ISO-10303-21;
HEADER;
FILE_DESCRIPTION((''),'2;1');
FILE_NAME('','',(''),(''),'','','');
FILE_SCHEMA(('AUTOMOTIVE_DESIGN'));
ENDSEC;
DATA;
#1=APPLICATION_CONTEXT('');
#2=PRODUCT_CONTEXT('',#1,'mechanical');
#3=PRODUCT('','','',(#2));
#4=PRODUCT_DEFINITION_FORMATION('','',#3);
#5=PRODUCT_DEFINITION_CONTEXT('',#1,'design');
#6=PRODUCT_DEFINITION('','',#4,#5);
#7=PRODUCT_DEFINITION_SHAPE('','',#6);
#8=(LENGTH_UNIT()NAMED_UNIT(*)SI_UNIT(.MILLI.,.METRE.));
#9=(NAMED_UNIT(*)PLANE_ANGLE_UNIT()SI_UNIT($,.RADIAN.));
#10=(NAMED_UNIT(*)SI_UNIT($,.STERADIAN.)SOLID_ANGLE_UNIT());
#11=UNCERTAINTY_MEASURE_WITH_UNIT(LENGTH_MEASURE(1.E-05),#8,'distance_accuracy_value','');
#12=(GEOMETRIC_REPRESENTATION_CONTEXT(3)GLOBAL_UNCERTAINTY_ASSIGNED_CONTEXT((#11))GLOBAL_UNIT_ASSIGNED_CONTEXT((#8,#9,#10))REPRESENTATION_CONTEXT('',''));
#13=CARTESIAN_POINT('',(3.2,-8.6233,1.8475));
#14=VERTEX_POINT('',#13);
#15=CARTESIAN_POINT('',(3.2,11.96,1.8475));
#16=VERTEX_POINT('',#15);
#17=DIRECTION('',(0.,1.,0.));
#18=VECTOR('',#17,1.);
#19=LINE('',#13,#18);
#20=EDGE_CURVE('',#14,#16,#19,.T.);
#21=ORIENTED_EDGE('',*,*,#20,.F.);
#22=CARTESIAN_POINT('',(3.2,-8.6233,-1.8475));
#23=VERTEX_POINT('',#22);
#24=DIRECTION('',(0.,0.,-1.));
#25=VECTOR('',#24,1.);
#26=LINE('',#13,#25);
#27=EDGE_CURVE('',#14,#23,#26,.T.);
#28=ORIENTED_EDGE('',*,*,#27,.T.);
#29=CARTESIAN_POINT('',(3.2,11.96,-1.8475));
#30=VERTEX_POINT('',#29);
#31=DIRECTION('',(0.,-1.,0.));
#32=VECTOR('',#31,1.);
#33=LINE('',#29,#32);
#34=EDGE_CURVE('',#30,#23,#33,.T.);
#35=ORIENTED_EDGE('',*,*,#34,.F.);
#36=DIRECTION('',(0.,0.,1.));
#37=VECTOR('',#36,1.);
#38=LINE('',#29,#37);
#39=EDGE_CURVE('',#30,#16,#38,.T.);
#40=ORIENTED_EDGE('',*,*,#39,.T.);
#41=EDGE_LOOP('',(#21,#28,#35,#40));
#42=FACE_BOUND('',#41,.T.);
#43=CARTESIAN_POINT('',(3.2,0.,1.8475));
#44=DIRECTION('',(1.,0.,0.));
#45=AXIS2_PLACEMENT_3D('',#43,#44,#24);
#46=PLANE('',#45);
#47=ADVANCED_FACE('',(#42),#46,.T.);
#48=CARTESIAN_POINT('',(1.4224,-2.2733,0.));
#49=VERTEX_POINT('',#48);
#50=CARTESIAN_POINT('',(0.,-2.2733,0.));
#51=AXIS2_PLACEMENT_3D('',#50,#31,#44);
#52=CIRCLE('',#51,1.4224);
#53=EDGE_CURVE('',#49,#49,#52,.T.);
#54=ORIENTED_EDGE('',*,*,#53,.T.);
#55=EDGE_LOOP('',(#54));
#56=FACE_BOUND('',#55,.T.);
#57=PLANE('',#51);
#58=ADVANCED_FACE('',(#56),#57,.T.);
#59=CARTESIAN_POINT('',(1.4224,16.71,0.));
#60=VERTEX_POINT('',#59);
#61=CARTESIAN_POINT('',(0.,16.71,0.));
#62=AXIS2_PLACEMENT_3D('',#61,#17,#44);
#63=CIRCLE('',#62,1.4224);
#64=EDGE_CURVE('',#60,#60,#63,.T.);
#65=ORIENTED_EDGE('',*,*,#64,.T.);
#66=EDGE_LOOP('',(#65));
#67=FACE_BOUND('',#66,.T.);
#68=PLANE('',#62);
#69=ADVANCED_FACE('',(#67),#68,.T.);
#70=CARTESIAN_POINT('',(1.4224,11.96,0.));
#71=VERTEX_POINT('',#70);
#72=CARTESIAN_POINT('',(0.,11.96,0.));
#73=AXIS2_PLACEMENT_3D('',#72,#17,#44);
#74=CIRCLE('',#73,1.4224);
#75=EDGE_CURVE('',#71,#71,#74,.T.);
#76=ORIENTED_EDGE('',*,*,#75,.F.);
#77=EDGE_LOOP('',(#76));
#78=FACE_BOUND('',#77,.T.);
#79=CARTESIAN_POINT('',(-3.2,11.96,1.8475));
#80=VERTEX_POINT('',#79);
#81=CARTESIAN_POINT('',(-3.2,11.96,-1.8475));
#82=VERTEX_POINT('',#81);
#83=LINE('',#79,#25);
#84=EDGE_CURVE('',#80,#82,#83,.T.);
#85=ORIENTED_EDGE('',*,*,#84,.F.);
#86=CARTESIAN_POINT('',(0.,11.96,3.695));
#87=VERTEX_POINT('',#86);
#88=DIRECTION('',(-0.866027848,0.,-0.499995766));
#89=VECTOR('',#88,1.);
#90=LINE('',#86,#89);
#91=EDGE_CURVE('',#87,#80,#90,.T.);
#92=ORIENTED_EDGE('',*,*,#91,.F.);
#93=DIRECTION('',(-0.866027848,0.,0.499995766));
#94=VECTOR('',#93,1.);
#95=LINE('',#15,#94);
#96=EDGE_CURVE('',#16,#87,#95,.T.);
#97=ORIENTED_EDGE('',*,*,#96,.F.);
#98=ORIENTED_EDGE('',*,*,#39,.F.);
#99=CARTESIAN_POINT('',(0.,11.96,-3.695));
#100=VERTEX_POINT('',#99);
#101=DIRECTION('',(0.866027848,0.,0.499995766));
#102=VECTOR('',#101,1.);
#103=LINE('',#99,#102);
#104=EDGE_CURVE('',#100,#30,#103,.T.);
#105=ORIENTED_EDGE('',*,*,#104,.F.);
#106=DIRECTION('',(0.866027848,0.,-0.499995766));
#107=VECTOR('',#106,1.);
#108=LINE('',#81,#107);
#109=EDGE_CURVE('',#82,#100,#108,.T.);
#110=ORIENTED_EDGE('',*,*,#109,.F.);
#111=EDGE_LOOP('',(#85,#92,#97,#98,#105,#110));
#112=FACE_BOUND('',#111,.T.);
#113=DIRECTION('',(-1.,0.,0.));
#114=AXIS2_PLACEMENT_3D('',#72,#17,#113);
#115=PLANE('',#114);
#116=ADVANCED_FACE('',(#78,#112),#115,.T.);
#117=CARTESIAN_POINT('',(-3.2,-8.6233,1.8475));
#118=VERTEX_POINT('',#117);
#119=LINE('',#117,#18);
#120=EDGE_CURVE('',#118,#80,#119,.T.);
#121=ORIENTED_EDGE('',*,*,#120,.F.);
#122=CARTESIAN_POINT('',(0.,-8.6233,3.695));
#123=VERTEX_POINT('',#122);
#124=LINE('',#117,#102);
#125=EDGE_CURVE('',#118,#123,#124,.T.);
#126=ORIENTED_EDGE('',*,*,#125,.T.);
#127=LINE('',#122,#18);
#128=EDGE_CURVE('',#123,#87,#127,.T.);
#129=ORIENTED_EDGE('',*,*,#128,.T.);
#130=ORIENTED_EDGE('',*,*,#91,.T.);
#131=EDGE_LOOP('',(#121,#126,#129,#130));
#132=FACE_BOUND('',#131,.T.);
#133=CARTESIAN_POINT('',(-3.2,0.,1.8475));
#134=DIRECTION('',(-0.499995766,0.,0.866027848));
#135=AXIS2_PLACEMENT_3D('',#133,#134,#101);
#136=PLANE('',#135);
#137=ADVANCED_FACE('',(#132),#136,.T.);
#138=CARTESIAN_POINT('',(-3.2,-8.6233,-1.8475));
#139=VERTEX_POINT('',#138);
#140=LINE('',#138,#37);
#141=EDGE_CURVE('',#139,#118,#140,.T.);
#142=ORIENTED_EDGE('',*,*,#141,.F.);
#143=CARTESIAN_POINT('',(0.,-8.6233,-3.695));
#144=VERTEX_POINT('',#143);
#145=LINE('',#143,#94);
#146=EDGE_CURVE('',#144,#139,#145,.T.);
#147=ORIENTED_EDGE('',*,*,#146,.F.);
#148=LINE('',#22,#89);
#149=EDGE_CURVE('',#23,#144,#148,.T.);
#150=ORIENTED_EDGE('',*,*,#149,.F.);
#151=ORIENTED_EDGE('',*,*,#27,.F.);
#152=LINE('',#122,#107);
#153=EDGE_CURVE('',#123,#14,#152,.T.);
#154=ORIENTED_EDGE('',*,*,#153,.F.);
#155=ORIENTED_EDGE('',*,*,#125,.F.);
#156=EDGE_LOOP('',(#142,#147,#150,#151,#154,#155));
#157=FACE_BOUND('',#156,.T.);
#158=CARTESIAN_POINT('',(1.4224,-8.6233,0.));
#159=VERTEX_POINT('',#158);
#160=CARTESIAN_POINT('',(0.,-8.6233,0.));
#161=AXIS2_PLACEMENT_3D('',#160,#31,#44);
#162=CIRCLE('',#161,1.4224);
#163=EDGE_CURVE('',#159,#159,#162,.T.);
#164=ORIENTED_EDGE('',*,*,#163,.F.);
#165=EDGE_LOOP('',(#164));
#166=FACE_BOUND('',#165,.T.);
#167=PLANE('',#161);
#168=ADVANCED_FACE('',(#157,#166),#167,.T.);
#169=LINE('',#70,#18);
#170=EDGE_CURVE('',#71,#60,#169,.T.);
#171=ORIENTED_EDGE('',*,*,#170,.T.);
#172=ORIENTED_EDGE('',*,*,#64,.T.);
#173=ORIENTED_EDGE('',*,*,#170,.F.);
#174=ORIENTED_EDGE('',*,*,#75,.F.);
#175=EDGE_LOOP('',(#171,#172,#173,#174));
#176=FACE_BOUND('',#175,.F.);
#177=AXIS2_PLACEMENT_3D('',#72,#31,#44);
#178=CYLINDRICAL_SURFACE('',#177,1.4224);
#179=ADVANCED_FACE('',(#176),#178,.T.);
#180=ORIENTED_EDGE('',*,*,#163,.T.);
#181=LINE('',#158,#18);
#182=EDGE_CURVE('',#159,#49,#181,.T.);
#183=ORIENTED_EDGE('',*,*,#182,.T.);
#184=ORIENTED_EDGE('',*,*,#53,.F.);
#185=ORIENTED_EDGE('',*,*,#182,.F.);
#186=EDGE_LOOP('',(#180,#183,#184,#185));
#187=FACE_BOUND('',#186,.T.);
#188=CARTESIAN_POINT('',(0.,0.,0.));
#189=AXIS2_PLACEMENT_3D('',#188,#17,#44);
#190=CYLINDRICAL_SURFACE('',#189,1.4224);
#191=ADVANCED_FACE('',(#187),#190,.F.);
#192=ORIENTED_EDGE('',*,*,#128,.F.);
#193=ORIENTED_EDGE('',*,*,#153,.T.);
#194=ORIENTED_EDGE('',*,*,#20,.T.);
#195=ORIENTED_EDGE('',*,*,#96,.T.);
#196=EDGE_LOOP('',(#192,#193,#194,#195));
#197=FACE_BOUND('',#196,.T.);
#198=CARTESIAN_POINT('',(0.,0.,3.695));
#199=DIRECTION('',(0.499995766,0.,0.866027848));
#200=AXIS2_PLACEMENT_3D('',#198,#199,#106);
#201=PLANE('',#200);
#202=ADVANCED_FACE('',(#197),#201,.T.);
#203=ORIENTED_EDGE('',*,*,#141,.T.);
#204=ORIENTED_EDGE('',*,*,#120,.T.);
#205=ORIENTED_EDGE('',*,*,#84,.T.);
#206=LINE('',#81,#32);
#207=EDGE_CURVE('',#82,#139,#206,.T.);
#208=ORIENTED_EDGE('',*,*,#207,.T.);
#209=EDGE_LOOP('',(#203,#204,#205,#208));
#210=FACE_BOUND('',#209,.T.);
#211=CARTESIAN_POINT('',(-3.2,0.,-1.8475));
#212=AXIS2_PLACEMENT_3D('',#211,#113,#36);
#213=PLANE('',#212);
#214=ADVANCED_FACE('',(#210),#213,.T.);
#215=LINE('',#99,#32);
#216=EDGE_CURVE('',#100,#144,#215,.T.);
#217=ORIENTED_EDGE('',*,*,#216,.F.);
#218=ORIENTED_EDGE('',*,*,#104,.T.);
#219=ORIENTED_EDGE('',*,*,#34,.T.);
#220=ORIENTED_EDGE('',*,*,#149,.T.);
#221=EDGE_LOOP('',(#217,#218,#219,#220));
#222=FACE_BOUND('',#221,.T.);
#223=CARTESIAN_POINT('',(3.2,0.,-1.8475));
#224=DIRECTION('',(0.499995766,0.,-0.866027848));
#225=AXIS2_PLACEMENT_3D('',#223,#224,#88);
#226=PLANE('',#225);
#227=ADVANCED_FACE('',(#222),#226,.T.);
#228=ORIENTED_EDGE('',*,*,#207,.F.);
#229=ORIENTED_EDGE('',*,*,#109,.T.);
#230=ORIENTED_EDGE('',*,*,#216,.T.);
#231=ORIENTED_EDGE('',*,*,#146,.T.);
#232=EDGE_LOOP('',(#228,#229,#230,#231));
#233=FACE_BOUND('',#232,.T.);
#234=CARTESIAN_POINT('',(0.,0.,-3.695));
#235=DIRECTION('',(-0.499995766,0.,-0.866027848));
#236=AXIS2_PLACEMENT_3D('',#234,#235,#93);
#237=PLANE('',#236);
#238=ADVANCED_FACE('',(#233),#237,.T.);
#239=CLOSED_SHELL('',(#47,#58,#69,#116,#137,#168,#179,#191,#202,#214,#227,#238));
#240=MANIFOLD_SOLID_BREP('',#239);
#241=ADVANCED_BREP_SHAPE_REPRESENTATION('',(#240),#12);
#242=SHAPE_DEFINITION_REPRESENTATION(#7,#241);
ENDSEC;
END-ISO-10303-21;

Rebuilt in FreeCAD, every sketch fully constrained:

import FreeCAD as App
import Part
import Sketcher

V = App.Vector
Q = App.Units.Quantity


def add_polygon(sketch, points):
    """Adds a closed chain of lines whose ends are joined by coincident constraints."""
    first, n = sketch.GeometryCount, len(points)
    for a, b in zip(points, points[1:] + points[:1]):
        sketch.addGeometry(Part.LineSegment(App.Vector(*a, 0), App.Vector(*b, 0)), False)
    for i in range(n):
        sketch.addConstraint(Sketcher.Constraint("Coincident", first + i, 2, first + (i + 1) % n, 1))

doc = App.newDocument("Part")
body = doc.addObject("PartDesign::Body", "Body")

# Sketch on XZ plane
sketch1 = body.newObject("Sketcher::SketchObject", "Sketch")
sketch1.AttachmentSupport = (doc.getObject("XZ_Plane"), [""])
sketch1.MapMode = "FlatFace"
add_polygon(sketch1, [(-3.2, -1.8), (-3.2, 1.8), (0, 3.7), (3.2, 1.8), (3.2, -1.8), (0, -3.7)])  # lines 0-5
sketch1.addConstraint([
    Sketcher.Constraint("Vertical", 0),
    Sketcher.Constraint("Vertical", 3),
    Sketcher.Constraint("Symmetric", 0, 2, 3, 2, -1, 1),
    Sketcher.Constraint("Symmetric", 1, 2, 4, 2, -1, 1),
    Sketcher.Constraint("PointOnObject", 1, 2, -2),
    Sketcher.Constraint("Parallel", 2, 5),
    Sketcher.Constraint("Horizontal", 0, 2, 2, 2),
    Sketcher.Constraint("Angle", 1, Q("29.9997 deg")),
    Sketcher.Constraint("DistanceX", 0, 2, 2, 2, 6.4),
    Sketcher.Constraint("DistanceY", 0, 1, 0, 2, 3.695),
])
pad1 = body.newObject("PartDesign::Pad", "Pad")
pad1.Profile = sketch1
pad1.Length = 11.96
pad1.Reversed = True

# Sketch on XZ plane
sketch2 = body.newObject("Sketcher::SketchObject", "Sketch001")
sketch2.AttachmentSupport = (doc.getObject("XZ_Plane"), [""])
sketch2.MapMode = "FlatFace"
sketch2.AttachmentOffset = App.Placement(V(0, 0, -11.96), App.Rotation())
sketch2.addGeometry(Part.Circle(V(0, 0, 0), V(0, 0, 1), 1.4), False)
sketch2.addConstraint([
    Sketcher.Constraint("Coincident", 0, 3, -1, 1),
    Sketcher.Constraint("Diameter", 0, Q("0.112 in")),
])
pad2 = body.newObject("PartDesign::Pad", "Pad001")
pad2.Profile = sketch2
pad2.Length = Q("0.1870079 in")
pad2.Reversed = True

# Sketch on XZ plane
sketch3 = body.newObject("Sketcher::SketchObject", "Sketch002")
sketch3.AttachmentSupport = (doc.getObject("XZ_Plane"), [""])
sketch3.MapMode = "FlatFace"
sketch3.addGeometry(Part.Circle(V(0, 0, 0), V(0, 0, 1), 1.4), False)
sketch3.addConstraint([
    Sketcher.Constraint("Coincident", 0, 3, -1, 1),
    Sketcher.Constraint("Diameter", 0, Q("0.112 in")),
])
pocket1 = body.newObject("PartDesign::Pocket", "Pocket")
pocket1.Profile = sketch3
pocket1.Length = Q("0.25 in")

# Sketch on XZ plane
sketch4 = body.newObject("Sketcher::SketchObject", "Sketch003")
sketch4.AttachmentSupport = (doc.getObject("XZ_Plane"), [""])
sketch4.MapMode = "FlatFace"
add_polygon(sketch4, [(-3.2, 1.8), (-3.2, -1.8), (0, -3.7), (3.2, -1.8), (3.2, 1.8), (0, 3.7)])  # lines 0-5
sketch4.addGeometry(Part.Circle(V(0, 0, 0), V(0, 0, 1), 1.4), False)  # 6
sketch4.addConstraint([
    Sketcher.Constraint("Vertical", 0),
    Sketcher.Constraint("Vertical", 3),
    Sketcher.Constraint("Coincident", 6, 3, -1, 1),
    Sketcher.Constraint("Symmetric", 0, 2, 3, 2, -1, 1),
    Sketcher.Constraint("Symmetric", 1, 2, 4, 2, -1, 1),
    Sketcher.Constraint("PointOnObject", 1, 2, -2),
    Sketcher.Constraint("Parallel", 2, 5),
    Sketcher.Constraint("Horizontal", 0, 2, 2, 2),
    Sketcher.Constraint("Diameter", 6, Q("0.112 in")),
    Sketcher.Constraint("Angle", 1, Q("-29.9997 deg")),
    Sketcher.Constraint("DistanceY", 0, 2, 0, 1, 3.695),
    Sketcher.Constraint("DistanceY", 1, 2, 3, 2, Q("0.2182 in")),
])
pad3 = body.newObject("PartDesign::Pad", "Pad002")
pad3.Profile = sketch4
pad3.Length = Q("0.3395 in")

# Sketch on XZ plane
sketch5 = body.newObject("Sketcher::SketchObject", "Sketch004")
sketch5.AttachmentSupport = (doc.getObject("XZ_Plane"), [""])
sketch5.MapMode = "FlatFace"
sketch5.AttachmentOffset = App.Placement(V(0, 0, -0.25 * 25.4), App.Rotation())
sketch5.addGeometry(Part.Circle(V(0, 0, 0), V(0, 0, 1), 1.4), False)
sketch5.addConstraint([
    Sketcher.Constraint("Coincident", 0, 3, -1, 1),
    Sketcher.Constraint("Diameter", 0, Q("0.112 in")),
])
pad4 = body.newObject("PartDesign::Pad", "Pad003")
pad4.Profile = sketch5
pad4.Length = Q("0.3395 in")

doc.recompute()
